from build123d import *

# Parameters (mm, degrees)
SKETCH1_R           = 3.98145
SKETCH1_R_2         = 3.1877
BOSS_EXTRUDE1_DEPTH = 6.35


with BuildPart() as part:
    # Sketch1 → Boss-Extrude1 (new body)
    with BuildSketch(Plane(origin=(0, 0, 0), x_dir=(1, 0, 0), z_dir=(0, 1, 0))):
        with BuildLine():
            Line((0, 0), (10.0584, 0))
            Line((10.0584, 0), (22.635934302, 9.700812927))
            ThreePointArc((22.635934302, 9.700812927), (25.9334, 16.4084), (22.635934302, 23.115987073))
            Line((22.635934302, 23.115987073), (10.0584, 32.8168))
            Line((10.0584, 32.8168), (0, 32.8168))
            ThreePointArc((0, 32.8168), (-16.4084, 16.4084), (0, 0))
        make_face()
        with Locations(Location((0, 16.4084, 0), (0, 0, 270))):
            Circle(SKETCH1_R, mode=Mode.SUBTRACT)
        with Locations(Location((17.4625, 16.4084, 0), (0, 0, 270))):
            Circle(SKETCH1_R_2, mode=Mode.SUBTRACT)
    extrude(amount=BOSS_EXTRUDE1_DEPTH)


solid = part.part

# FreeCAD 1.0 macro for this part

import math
import FreeCAD as App
import Part
import Sketcher

V = App.Vector
Q = App.Units.Quantity

doc = App.newDocument("Part")
body = doc.addObject("PartDesign::Body", "Body")

# Sketch on XZ plane
sketch1 = body.newObject("Sketcher::SketchObject", "Sketch")
sketch1.AttachmentSupport = (doc.getObject("XZ_Plane"), [""])
sketch1.MapMode = "FlatFace"
sketch1.addGeometry([
    Part.LineSegment(V(0, 0, 0), V(10.0584, 0, 0)),  # 0
    Part.LineSegment(V(10.0584, 0, 0), V(22.635934, -9.700813, 0)),  # 1
    Part.ArcOfCircle(Part.Circle(V(17.4625, -16.4084, 0), V(0, 0, 1), 8.4709), math.radians(-52.357681), math.radians(52.357681)),  # 2
    Part.LineSegment(V(22.635934, -23.115987, 0), V(10.0584, -32.8168, 0)),  # 3
    Part.LineSegment(V(10.0584, -32.8168, 0), V(0, -32.8168, 0)),  # 4
    Part.ArcOfCircle(Part.Circle(V(0, -16.4084, 0), V(0, 0, 1), 16.4084), math.radians(90), math.radians(270)),  # 5
    Part.Circle(V(0, -16.4084, 0), V(0, 0, 1), 3.98145),  # 6
    Part.Circle(V(17.4625, -16.4084, 0), V(0, 0, 1), 3.1877),  # 7
], False)
sketch1.addConstraint([
    Sketcher.Constraint("Coincident", 0, 2, 1, 1),
    Sketcher.Constraint("Tangent", 1, 2, 2, 2),
    Sketcher.Constraint("Tangent", 2, 1, 3, 1),
    Sketcher.Constraint("Coincident", 3, 2, 4, 1),
    Sketcher.Constraint("Tangent", 4, 2, 5, 2),
    Sketcher.Constraint("Tangent", 5, 1, 0, 1),
    Sketcher.Constraint("Horizontal", 0),
    Sketcher.Constraint("Horizontal", 4),
    Sketcher.Constraint("Coincident", 5, 1, -1, 1),
    Sketcher.Constraint("Coincident", 6, 3, 5, 3),
    Sketcher.Constraint("Coincident", 7, 3, 2, 3),
    Sketcher.Constraint("Horizontal", 2, 3, 5, 3),
    Sketcher.Constraint("Vertical", 1, 2, 2, 1),
    Sketcher.Constraint("Diameter", 7, Q("0.251 in")),
    Sketcher.Constraint("Radius", 5, Q("0.646 in")),
    Sketcher.Constraint("Diameter", 6, Q("0.3135 in")),
    Sketcher.Constraint("Radius", 2, Q("0.3335 in")),
    Sketcher.Constraint("DistanceX", 0, 1, 0, 2, Q("0.396 in")),
    Sketcher.Constraint("DistanceX", -1, 1, 2, 3, Q("0.6875 in")),
])
pad1 = body.newObject("PartDesign::Pad", "Pad")
pad1.Profile = sketch1
pad1.Length = Q("0.25 in")
pad1.Reversed = True

doc.recompute()
